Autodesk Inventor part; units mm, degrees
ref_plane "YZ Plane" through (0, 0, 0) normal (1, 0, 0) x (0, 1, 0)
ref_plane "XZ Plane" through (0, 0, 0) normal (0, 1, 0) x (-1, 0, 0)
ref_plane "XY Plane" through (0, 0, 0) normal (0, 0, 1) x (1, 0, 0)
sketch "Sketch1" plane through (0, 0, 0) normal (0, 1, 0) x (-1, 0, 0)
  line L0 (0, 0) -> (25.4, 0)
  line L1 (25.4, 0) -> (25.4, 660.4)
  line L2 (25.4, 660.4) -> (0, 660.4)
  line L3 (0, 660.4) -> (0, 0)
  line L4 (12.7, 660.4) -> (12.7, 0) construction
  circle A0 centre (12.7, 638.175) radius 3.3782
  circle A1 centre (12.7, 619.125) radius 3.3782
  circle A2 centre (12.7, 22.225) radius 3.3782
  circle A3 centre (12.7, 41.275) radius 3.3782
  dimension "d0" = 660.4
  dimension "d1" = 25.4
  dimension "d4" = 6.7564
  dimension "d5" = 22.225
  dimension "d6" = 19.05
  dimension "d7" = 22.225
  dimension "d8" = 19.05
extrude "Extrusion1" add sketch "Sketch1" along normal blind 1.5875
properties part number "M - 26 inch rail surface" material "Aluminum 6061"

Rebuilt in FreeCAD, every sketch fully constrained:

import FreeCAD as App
import Part
import Sketcher
from FreeCAD import Vector
Q = App.Units.Quantity


def add_polygon(sketch, points):
    """Adds a closed chain of lines whose ends are joined by coincident constraints."""
    first, n = sketch.GeometryCount, len(points)
    for a, b in zip(points, points[1:] + points[:1]):
        sketch.addGeometry(Part.LineSegment(App.Vector(*a, 0), App.Vector(*b, 0)), False)
    for i in range(n):
        sketch.addConstraint(Sketcher.Constraint("Coincident", first + i, 2, first + (i + 1) % n, 1))

doc = App.newDocument("Part")
body = doc.addObject("PartDesign::Body", "Body")

# Sketch on XZ plane
sketch1 = doc.addObject("Sketcher::SketchObject", "Sketch")
body.addObject(sketch1)
sketch1.AttachmentSupport = (doc.XZ_Plane, [""])
sketch1.MapMode = "FlatFace"
add_polygon(sketch1, [(0, 660.4), (0, 0), (-25.4, 0), (-25.4, 660.4)])  # lines 0-3
sketch1.addGeometry(Part.Circle(Vector(-12.7, 22.2, 0), Vector(0, 0, 1), 3.4), False)  # 4
sketch1.addGeometry(Part.Circle(Vector(-12.7, 41.3, 0), Vector(0, 0, 1), 3.4), False)  # 5
sketch1.addGeometry(Part.Circle(Vector(-12.7, 619.1, 0), Vector(0, 0, 1), 3.4), False)  # 6
sketch1.addGeometry(Part.Circle(Vector(-12.7, 638.2, 0), Vector(0, 0, 1), 3.4), False)  # 7
sketch1.addConstraint([
    Sketcher.Constraint("Vertical", 0),
    Sketcher.Constraint("Horizontal", 1),
    Sketcher.Constraint("Vertical", 2),
    Sketcher.Constraint("Horizontal", 3),
    Sketcher.Constraint("Coincident", 0, 2, -1, 1),
    Sketcher.Constraint("Equal", 4, 5),
    Sketcher.Constraint("Equal", 5, 6),
    Sketcher.Constraint("Equal", 6, 7),
    Sketcher.Constraint("Vertical", 4, 3, 5, 3),
    Sketcher.Constraint("Vertical", 5, 3, 6, 3),
    Sketcher.Constraint("Vertical", 6, 3, 7, 3),
    Sketcher.Constraint("DistanceX", 1, 2, 1, 1, Q("1 in")),
    Sketcher.Constraint("DistanceY", 0, 2, 0, 1, Q("26 in")),
    Sketcher.Constraint("Diameter", 4, Q("0.266 in")),
    Sketcher.Constraint("DistanceY", 4, 3, 5, 3, Q("0.75 in")),
    Sketcher.Constraint("DistanceY", 6, 3, 7, 3, Q("0.75 in")),
    Sketcher.Constraint("DistanceY", -1, 1, 4, 3, Q("0.875 in")),
    Sketcher.Constraint("DistanceY", 7, 3, 2, 2, Q("0.875 in")),
    Sketcher.Constraint("DistanceX", 4, 3, -1, 1, Q("0.5 in")),
])
pad1 = doc.addObject("PartDesign::Pad", "Pad")
body.addObject(pad1)
pad1.Profile = sketch1
pad1.Length = Q("0.0625 in")
pad1.Reversed = True

doc.recompute()
